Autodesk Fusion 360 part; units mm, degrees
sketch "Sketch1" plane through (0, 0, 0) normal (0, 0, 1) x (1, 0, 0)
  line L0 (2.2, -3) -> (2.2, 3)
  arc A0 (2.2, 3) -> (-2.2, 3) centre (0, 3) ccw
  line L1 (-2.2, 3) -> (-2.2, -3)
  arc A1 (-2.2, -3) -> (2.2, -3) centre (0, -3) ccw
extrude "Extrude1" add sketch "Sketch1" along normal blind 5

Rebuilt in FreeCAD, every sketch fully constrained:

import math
import FreeCAD as App
import Part
import Sketcher
Q = App.Units.Quantity

doc = App.newDocument("Part")
params = doc.addObject("Spreadsheet::Sheet", "Params")
for row, (alias, value) in enumerate([
    ("sketch1_radius", "2.2 mm"),
    ("sketch1_height", "6 mm"),
    ("pad1_length", "5 mm"),
], start=1):
    params.set(f"A{row}", alias)
    params.set(f"B{row}", "=" + value)
    params.setAlias(f"B{row}", alias)

body = doc.addObject("PartDesign::Body", "Body")

# Sketch on XY plane
sketch1 = body.newObject("Sketcher::SketchObject", "Sketch")
sketch1.AttachmentSupport = (doc.getObject("XY_Plane"), [""])
sketch1.MapMode = "FlatFace"
sketch1.addGeometry(Part.ArcOfCircle(Part.Circle(App.Vector(0, -3, 0), App.Vector(0, 0, 1), 2.2), math.radians(180), math.radians(360)), False)
sketch1.addGeometry(Part.LineSegment(App.Vector(2.2, -3, 0), App.Vector(2.2, 3, 0)), False)
sketch1.addGeometry(Part.ArcOfCircle(Part.Circle(App.Vector(0, 3, 0), App.Vector(0, 0, 1), 2.2), math.radians(0), math.radians(180)), False)
sketch1.addGeometry(Part.LineSegment(App.Vector(-2.2, 3, 0), App.Vector(-2.2, -3, 0)), False)
sketch1.addConstraint(Sketcher.Constraint("Tangent", 0, 2, 1, 1))
sketch1.addConstraint(Sketcher.Constraint("Tangent", 1, 2, 2, 1))
sketch1.addConstraint(Sketcher.Constraint("Tangent", 2, 2, 3, 1))
sketch1.addConstraint(Sketcher.Constraint("Tangent", 3, 2, 0, 1))
sketch1.addConstraint(Sketcher.Constraint("Vertical", 1))
sketch1.addConstraint(Sketcher.Constraint("Vertical", 3))
sketch1.addConstraint(Sketcher.Constraint("Symmetric", 0, 3, 2, 3, -1, 1))
sketch1.addConstraint(Sketcher.Constraint("Radius", 0, Q("2.2 mm")))
sketch1.addConstraint(Sketcher.Constraint("DistanceY", 1, 1, 1, 2, Q("6 mm")))
sketch1.setExpression("Constraints[7]", "Params.sketch1_radius")
sketch1.setExpression("Constraints[8]", "Params.sketch1_height")
pad1 = body.newObject("PartDesign::Pad", "Pad")
pad1.Profile = sketch1
pad1.setExpression("Length", "Params.pad1_length")

doc.recompute()
